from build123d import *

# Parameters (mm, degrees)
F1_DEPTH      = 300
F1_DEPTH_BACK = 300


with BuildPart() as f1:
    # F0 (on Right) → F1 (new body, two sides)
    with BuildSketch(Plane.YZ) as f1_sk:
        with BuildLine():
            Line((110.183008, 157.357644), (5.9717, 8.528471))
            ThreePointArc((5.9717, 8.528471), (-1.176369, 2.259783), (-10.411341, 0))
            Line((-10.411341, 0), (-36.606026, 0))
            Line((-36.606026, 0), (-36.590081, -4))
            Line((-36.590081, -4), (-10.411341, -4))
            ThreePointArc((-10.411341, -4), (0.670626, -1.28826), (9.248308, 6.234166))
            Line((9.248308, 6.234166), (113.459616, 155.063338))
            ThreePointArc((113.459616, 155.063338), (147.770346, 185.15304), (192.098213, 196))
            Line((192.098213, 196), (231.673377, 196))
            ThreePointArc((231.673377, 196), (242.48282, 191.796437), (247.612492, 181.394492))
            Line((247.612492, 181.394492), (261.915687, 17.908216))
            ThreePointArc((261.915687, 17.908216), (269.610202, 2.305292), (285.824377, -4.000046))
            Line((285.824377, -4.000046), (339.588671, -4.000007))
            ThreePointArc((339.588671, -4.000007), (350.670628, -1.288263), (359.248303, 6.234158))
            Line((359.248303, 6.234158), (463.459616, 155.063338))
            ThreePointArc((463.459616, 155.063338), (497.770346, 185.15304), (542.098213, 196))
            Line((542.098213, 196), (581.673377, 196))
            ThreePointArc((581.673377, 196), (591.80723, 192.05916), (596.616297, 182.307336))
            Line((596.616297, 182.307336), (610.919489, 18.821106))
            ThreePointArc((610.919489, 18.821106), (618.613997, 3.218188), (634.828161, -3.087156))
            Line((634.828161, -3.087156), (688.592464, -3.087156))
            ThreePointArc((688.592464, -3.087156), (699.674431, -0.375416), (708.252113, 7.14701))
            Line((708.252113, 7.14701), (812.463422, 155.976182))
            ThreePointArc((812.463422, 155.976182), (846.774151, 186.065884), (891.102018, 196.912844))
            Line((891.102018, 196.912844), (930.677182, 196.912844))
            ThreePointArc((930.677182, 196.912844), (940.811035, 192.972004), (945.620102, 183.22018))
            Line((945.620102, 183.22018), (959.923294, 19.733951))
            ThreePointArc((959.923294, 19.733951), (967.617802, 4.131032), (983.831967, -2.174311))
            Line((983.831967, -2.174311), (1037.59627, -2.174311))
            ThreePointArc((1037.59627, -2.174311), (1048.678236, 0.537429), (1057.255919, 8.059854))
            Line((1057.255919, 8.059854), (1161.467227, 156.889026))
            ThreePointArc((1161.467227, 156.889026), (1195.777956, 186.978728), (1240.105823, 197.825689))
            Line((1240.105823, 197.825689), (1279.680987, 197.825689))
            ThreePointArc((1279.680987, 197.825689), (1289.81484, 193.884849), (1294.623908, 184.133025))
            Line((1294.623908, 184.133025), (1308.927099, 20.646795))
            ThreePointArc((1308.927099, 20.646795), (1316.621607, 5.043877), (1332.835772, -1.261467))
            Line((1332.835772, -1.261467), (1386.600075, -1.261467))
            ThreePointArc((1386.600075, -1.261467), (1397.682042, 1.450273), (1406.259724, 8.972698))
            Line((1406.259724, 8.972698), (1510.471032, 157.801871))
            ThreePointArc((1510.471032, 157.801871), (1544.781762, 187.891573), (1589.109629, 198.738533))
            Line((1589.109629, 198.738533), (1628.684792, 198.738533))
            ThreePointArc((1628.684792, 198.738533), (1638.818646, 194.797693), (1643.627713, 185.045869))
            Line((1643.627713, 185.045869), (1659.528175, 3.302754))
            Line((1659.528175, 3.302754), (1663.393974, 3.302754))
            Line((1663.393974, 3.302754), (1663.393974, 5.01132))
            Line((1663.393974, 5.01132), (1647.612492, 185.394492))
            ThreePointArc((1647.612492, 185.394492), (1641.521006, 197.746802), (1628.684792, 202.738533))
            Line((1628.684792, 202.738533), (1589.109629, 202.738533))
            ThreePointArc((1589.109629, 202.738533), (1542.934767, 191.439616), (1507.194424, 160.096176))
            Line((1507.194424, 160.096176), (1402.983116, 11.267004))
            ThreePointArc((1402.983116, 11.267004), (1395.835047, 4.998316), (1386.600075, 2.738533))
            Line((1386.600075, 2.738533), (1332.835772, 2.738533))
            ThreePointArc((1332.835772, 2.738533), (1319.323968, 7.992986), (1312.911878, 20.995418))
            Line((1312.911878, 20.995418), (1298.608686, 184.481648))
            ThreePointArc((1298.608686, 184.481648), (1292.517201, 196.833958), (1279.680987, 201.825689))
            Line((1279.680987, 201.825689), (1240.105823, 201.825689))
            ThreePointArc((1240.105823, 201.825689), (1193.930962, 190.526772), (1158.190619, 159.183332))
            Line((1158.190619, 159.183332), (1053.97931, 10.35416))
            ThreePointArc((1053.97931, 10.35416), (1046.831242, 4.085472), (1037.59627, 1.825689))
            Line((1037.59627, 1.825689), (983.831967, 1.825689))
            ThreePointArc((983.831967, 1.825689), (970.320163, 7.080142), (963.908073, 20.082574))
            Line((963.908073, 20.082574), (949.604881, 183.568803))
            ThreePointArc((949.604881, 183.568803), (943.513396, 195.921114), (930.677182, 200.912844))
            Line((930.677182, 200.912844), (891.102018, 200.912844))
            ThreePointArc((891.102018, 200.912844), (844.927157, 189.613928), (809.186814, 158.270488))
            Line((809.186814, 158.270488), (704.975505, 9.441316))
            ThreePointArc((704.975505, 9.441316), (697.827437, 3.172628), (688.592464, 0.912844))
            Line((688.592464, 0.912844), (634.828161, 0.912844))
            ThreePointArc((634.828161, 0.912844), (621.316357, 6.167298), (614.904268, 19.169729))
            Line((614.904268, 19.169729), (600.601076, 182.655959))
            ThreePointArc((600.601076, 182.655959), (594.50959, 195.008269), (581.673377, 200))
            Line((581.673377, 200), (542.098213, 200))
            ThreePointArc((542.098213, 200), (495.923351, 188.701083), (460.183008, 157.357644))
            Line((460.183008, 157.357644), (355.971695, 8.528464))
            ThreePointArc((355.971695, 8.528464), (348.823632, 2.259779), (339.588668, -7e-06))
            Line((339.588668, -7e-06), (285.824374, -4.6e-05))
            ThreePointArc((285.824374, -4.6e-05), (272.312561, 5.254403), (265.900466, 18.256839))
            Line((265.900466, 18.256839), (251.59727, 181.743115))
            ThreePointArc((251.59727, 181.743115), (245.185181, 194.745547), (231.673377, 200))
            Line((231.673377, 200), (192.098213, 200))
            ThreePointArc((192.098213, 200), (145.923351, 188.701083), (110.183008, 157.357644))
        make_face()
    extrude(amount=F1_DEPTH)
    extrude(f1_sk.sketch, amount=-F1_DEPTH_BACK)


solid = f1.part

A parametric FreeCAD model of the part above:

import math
import FreeCAD as App
import Part
import Sketcher
Q = App.Units.Quantity

doc = App.newDocument("Part")
body = doc.addObject("PartDesign::Body", "Body")

sketch1 = body.newObject("Sketcher::SketchObject", "Sketch")
sketch1.AttachmentSupport = (doc.getObject("YZ_Plane"), [""])
sketch1.MapMode = "FlatFace"
sketch1.addGeometry([
    Part.LineSegment(App.Vector(110.2, 157.4, 0), App.Vector(6, 8.5, 0)),
    Part.ArcOfCircle(Part.Circle(App.Vector(-10.4, 20, 0), App.Vector(0, 0, 1), 20), math.radians(-90), math.radians(-35)),
    Part.LineSegment(App.Vector(-10.4, 0, 0), App.Vector(-36.6, 0, 0)),
    Part.LineSegment(App.Vector(-36.6, 0, 0), App.Vector(-36.6, -4, 0)),
    Part.LineSegment(App.Vector(-36.6, -4, 0), App.Vector(-10.4, -4, 0)),
    Part.ArcOfCircle(Part.Circle(App.Vector(-10.4, 20, 0), App.Vector(0, 0, 1), 24), math.radians(-90), math.radians(-35)),
    Part.LineSegment(App.Vector(9.2, 6.2, 0), App.Vector(113.5, 155.1, 0)),
    Part.ArcOfCircle(Part.Circle(App.Vector(192.1, 100, 0), App.Vector(0, 0, 1), 96), math.radians(90), math.radians(145)),
    Part.LineSegment(App.Vector(192.1, 196, 0), App.Vector(231.7, 196, 0)),
    Part.ArcOfCircle(Part.Circle(App.Vector(231.7, 180, 0), App.Vector(0, 0, 1), 16), math.radians(5), math.radians(90)),
    Part.LineSegment(App.Vector(247.6, 181.4, 0), App.Vector(261.9, 17.9, 0)),
    Part.ArcOfCircle(Part.Circle(App.Vector(285.8, 20, 0), App.Vector(0, 0, 1), 24), math.radians(-175), math.radians(-90)),
    Part.LineSegment(App.Vector(285.8, -4, 0), App.Vector(339.6, -4, 0)),
    Part.ArcOfCircle(Part.Circle(App.Vector(339.6, 20, 0), App.Vector(0, 0, 1), 24), math.radians(-90), math.radians(-35)),
    Part.LineSegment(App.Vector(359.2, 6.2, 0), App.Vector(463.5, 155.1, 0)),
    Part.ArcOfCircle(Part.Circle(App.Vector(542.1, 100, 0), App.Vector(0, 0, 1), 96), math.radians(90), math.radians(145)),
    Part.LineSegment(App.Vector(542.1, 196, 0), App.Vector(581.7, 196, 0)),
    Part.ArcOfCircle(Part.Circle(App.Vector(581.7, 181, 0), App.Vector(0, 0, 1), 15), math.radians(5), math.radians(90)),
    Part.LineSegment(App.Vector(596.6, 182.3, 0), App.Vector(610.9, 18.8, 0)),
    Part.ArcOfCircle(Part.Circle(App.Vector(634.8, 20.9, 0), App.Vector(0, 0, 1), 24), math.radians(-175), math.radians(-90)),
    Part.LineSegment(App.Vector(634.8, -3.1, 0), App.Vector(688.6, -3.1, 0)),
    Part.ArcOfCircle(Part.Circle(App.Vector(688.6, 20.9, 0), App.Vector(0, 0, 1), 24), math.radians(-90), math.radians(-35)),
    Part.LineSegment(App.Vector(708.3, 7.1, 0), App.Vector(812.5, 156, 0)),
    Part.ArcOfCircle(Part.Circle(App.Vector(891.1, 100.9, 0), App.Vector(0, 0, 1), 96), math.radians(90), math.radians(145)),
    Part.LineSegment(App.Vector(891.1, 196.9, 0), App.Vector(930.7, 196.9, 0)),
    Part.ArcOfCircle(Part.Circle(App.Vector(930.7, 181.9, 0), App.Vector(0, 0, 1), 15), math.radians(5), math.radians(90)),
    Part.LineSegment(App.Vector(945.6, 183.2, 0), App.Vector(959.9, 19.7, 0)),
    Part.ArcOfCircle(Part.Circle(App.Vector(983.8, 21.8, 0), App.Vector(0, 0, 1), 24), math.radians(-175), math.radians(-90)),
    Part.LineSegment(App.Vector(983.8, -2.2, 0), App.Vector(1037.6, -2.2, 0)),
    Part.ArcOfCircle(Part.Circle(App.Vector(1037.6, 21.8, 0), App.Vector(0, 0, 1), 24), math.radians(-90), math.radians(-35)),
    Part.LineSegment(App.Vector(1057.3, 8.1, 0), App.Vector(1161.5, 156.9, 0)),
    Part.ArcOfCircle(Part.Circle(App.Vector(1240.1, 101.8, 0), App.Vector(0, 0, 1), 96), math.radians(90), math.radians(145)),
    Part.LineSegment(App.Vector(1240.1, 197.8, 0), App.Vector(1279.7, 197.8, 0)),
    Part.ArcOfCircle(Part.Circle(App.Vector(1279.7, 182.8, 0), App.Vector(0, 0, 1), 15), math.radians(5), math.radians(90)),
    Part.LineSegment(App.Vector(1294.6, 184.1, 0), App.Vector(1308.9, 20.6, 0)),
    Part.ArcOfCircle(Part.Circle(App.Vector(1332.8, 22.7, 0), App.Vector(0, 0, 1), 24), math.radians(-175), math.radians(-90)),
    Part.LineSegment(App.Vector(1332.8, -1.3, 0), App.Vector(1386.6, -1.3, 0)),
    Part.ArcOfCircle(Part.Circle(App.Vector(1386.6, 22.7, 0), App.Vector(0, 0, 1), 24), math.radians(-90), math.radians(-35)),
    Part.LineSegment(App.Vector(1406.3, 9, 0), App.Vector(1510.5, 157.8, 0)),
    Part.ArcOfCircle(Part.Circle(App.Vector(1589.1, 102.7, 0), App.Vector(0, 0, 1), 96), math.radians(90), math.radians(145)),
    Part.LineSegment(App.Vector(1589.1, 198.7, 0), App.Vector(1628.7, 198.7, 0)),
    Part.ArcOfCircle(Part.Circle(App.Vector(1628.7, 183.7, 0), App.Vector(0, 0, 1), 15), math.radians(5), math.radians(90)),
    Part.LineSegment(App.Vector(1643.6, 185, 0), App.Vector(1659.5, 3.3, 0)),
    Part.LineSegment(App.Vector(1659.5, 3.3, 0), App.Vector(1663.4, 3.3, 0)),
    Part.LineSegment(App.Vector(1663.4, 3.3, 0), App.Vector(1663.4, 5, 0)),
    Part.LineSegment(App.Vector(1663.4, 5, 0), App.Vector(1647.6, 185.4, 0)),
    Part.ArcOfCircle(Part.Circle(App.Vector(1628.7, 183.7, 0), App.Vector(0, 0, 1), 19), math.radians(5), math.radians(90)),
    Part.LineSegment(App.Vector(1628.7, 202.7, 0), App.Vector(1589.1, 202.7, 0)),
    Part.ArcOfCircle(Part.Circle(App.Vector(1589.1, 102.7, 0), App.Vector(0, 0, 1), 100), math.radians(90), math.radians(145)),
    Part.LineSegment(App.Vector(1507.2, 160.1, 0), App.Vector(1403, 11.3, 0)),
    Part.ArcOfCircle(Part.Circle(App.Vector(1386.6, 22.7, 0), App.Vector(0, 0, 1), 20), math.radians(-90), math.radians(-35)),
    Part.LineSegment(App.Vector(1386.6, 2.7, 0), App.Vector(1332.8, 2.7, 0)),
    Part.ArcOfCircle(Part.Circle(App.Vector(1332.8, 22.7, 0), App.Vector(0, 0, 1), 20), math.radians(-175), math.radians(-90)),
    Part.LineSegment(App.Vector(1312.9, 21, 0), App.Vector(1298.6, 184.5, 0)),
    Part.ArcOfCircle(Part.Circle(App.Vector(1279.7, 182.8, 0), App.Vector(0, 0, 1), 19), math.radians(5), math.radians(90)),
    Part.LineSegment(App.Vector(1279.7, 201.8, 0), App.Vector(1240.1, 201.8, 0)),
    Part.ArcOfCircle(Part.Circle(App.Vector(1240.1, 101.8, 0), App.Vector(0, 0, 1), 100), math.radians(90), math.radians(145)),
    Part.LineSegment(App.Vector(1158.2, 159.2, 0), App.Vector(1054, 10.4, 0)),
    Part.ArcOfCircle(Part.Circle(App.Vector(1037.6, 21.8, 0), App.Vector(0, 0, 1), 20), math.radians(-90), math.radians(-35)),
    Part.LineSegment(App.Vector(1037.6, 1.8, 0), App.Vector(983.8, 1.8, 0)),
    Part.ArcOfCircle(Part.Circle(App.Vector(983.8, 21.8, 0), App.Vector(0, 0, 1), 20), math.radians(-175), math.radians(-90)),
    Part.LineSegment(App.Vector(963.9, 20.1, 0), App.Vector(949.6, 183.6, 0)),
    Part.ArcOfCircle(Part.Circle(App.Vector(930.7, 181.9, 0), App.Vector(0, 0, 1), 19), math.radians(5), math.radians(90)),
    Part.LineSegment(App.Vector(930.7, 200.9, 0), App.Vector(891.1, 200.9, 0)),
    Part.ArcOfCircle(Part.Circle(App.Vector(891.1, 100.9, 0), App.Vector(0, 0, 1), 100), math.radians(90), math.radians(145)),
    Part.LineSegment(App.Vector(809.2, 158.3, 0), App.Vector(705, 9.4, 0)),
    Part.ArcOfCircle(Part.Circle(App.Vector(688.6, 20.9, 0), App.Vector(0, 0, 1), 20), math.radians(-90), math.radians(-35)),
    Part.LineSegment(App.Vector(688.6, 0.9, 0), App.Vector(634.8, 0.9, 0)),
    Part.ArcOfCircle(Part.Circle(App.Vector(634.8, 20.9, 0), App.Vector(0, 0, 1), 20), math.radians(-175), math.radians(-90)),
    Part.LineSegment(App.Vector(614.9, 19.2, 0), App.Vector(600.6, 182.7, 0)),
    Part.ArcOfCircle(Part.Circle(App.Vector(581.7, 181, 0), App.Vector(0, 0, 1), 19), math.radians(5), math.radians(90)),
    Part.LineSegment(App.Vector(581.7, 200, 0), App.Vector(542.1, 200, 0)),
    Part.ArcOfCircle(Part.Circle(App.Vector(542.1, 100, 0), App.Vector(0, 0, 1), 100), math.radians(90), math.radians(145)),
    Part.LineSegment(App.Vector(460.2, 157.4, 0), App.Vector(356, 8.5, 0)),
    Part.ArcOfCircle(Part.Circle(App.Vector(339.6, 20, 0), App.Vector(0, 0, 1), 20), math.radians(-90), math.radians(-35)),
    Part.LineSegment(App.Vector(339.6, 0, 0), App.Vector(285.8, 0, 0)),
    Part.ArcOfCircle(Part.Circle(App.Vector(285.8, 20, 0), App.Vector(0, 0, 1), 20), math.radians(-175), math.radians(-90)),
    Part.LineSegment(App.Vector(265.9, 18.3, 0), App.Vector(251.6, 181.7, 0)),
    Part.ArcOfCircle(Part.Circle(App.Vector(231.7, 180, 0), App.Vector(0, 0, 1), 20), math.radians(5), math.radians(90)),
    Part.LineSegment(App.Vector(231.7, 200, 0), App.Vector(192.1, 200, 0)),
    Part.ArcOfCircle(Part.Circle(App.Vector(192.1, 100, 0), App.Vector(0, 0, 1), 100), math.radians(90), math.radians(145)),
], False)
sketch1.addConstraint([
    Sketcher.Constraint("Tangent", 0, 2, 1, 2),
    Sketcher.Constraint("Tangent", 1, 1, 2, 1),
    Sketcher.Constraint("Coincident", 2, 2, 3, 1),
    Sketcher.Constraint("Coincident", 3, 2, 4, 1),
    Sketcher.Constraint("Tangent", 4, 2, 5, 1),
    Sketcher.Constraint("Tangent", 5, 2, 6, 1),
    Sketcher.Constraint("Tangent", 6, 2, 7, 2),
    Sketcher.Constraint("Tangent", 7, 1, 8, 1),
    Sketcher.Constraint("Tangent", 8, 2, 9, 2),
    Sketcher.Constraint("Tangent", 9, 1, 10, 1),
    Sketcher.Constraint("Tangent", 10, 2, 11, 1),
    Sketcher.Constraint("Tangent", 11, 2, 12, 1),
    Sketcher.Constraint("Tangent", 12, 2, 13, 1),
    Sketcher.Constraint("Tangent", 13, 2, 14, 1),
    Sketcher.Constraint("Tangent", 14, 2, 15, 2),
    Sketcher.Constraint("Tangent", 15, 1, 16, 1),
    Sketcher.Constraint("Tangent", 16, 2, 17, 2),
    Sketcher.Constraint("Tangent", 17, 1, 18, 1),
    Sketcher.Constraint("Tangent", 18, 2, 19, 1),
    Sketcher.Constraint("Tangent", 19, 2, 20, 1),
    Sketcher.Constraint("Tangent", 20, 2, 21, 1),
    Sketcher.Constraint("Tangent", 21, 2, 22, 1),
    Sketcher.Constraint("Tangent", 22, 2, 23, 2),
    Sketcher.Constraint("Tangent", 23, 1, 24, 1),
    Sketcher.Constraint("Tangent", 24, 2, 25, 2),
    Sketcher.Constraint("Tangent", 25, 1, 26, 1),
    Sketcher.Constraint("Tangent", 26, 2, 27, 1),
    Sketcher.Constraint("Tangent", 27, 2, 28, 1),
    Sketcher.Constraint("Tangent", 28, 2, 29, 1),
    Sketcher.Constraint("Tangent", 29, 2, 30, 1),
    Sketcher.Constraint("Tangent", 30, 2, 31, 2),
    Sketcher.Constraint("Tangent", 31, 1, 32, 1),
    Sketcher.Constraint("Tangent", 32, 2, 33, 2),
    Sketcher.Constraint("Tangent", 33, 1, 34, 1),
    Sketcher.Constraint("Tangent", 34, 2, 35, 1),
    Sketcher.Constraint("Tangent", 35, 2, 36, 1),
    Sketcher.Constraint("Tangent", 36, 2, 37, 1),
    Sketcher.Constraint("Tangent", 37, 2, 38, 1),
    Sketcher.Constraint("Tangent", 38, 2, 39, 2),
    Sketcher.Constraint("Tangent", 39, 1, 40, 1),
    Sketcher.Constraint("Tangent", 40, 2, 41, 2),
    Sketcher.Constraint("Tangent", 41, 1, 42, 1),
    Sketcher.Constraint("Coincident", 42, 2, 43, 1),
    Sketcher.Constraint("Coincident", 43, 2, 44, 1),
    Sketcher.Constraint("Coincident", 44, 2, 45, 1),
    Sketcher.Constraint("Tangent", 45, 2, 46, 1),
    Sketcher.Constraint("Tangent", 46, 2, 47, 1),
    Sketcher.Constraint("Tangent", 47, 2, 48, 1),
    Sketcher.Constraint("Tangent", 48, 2, 49, 1),
    Sketcher.Constraint("Tangent", 49, 2, 50, 2),
    Sketcher.Constraint("Tangent", 50, 1, 51, 1),
    Sketcher.Constraint("Tangent", 51, 2, 52, 2),
    Sketcher.Constraint("Tangent", 52, 1, 53, 1),
    Sketcher.Constraint("Tangent", 53, 2, 54, 1),
    Sketcher.Constraint("Tangent", 54, 2, 55, 1),
    Sketcher.Constraint("Tangent", 55, 2, 56, 1),
    Sketcher.Constraint("Tangent", 56, 2, 57, 1),
    Sketcher.Constraint("Tangent", 57, 2, 58, 2),
    Sketcher.Constraint("Tangent", 58, 1, 59, 1),
    Sketcher.Constraint("Tangent", 59, 2, 60, 2),
    Sketcher.Constraint("Tangent", 60, 1, 61, 1),
    Sketcher.Constraint("Tangent", 61, 2, 62, 1),
    Sketcher.Constraint("Tangent", 62, 2, 63, 1),
    Sketcher.Constraint("Tangent", 63, 2, 64, 1),
    Sketcher.Constraint("Tangent", 64, 2, 65, 1),
    Sketcher.Constraint("Tangent", 65, 2, 66, 2),
    Sketcher.Constraint("Tangent", 66, 1, 67, 1),
    Sketcher.Constraint("Tangent", 67, 2, 68, 2),
    Sketcher.Constraint("Tangent", 68, 1, 69, 1),
    Sketcher.Constraint("Tangent", 69, 2, 70, 1),
    Sketcher.Constraint("Tangent", 70, 2, 71, 1),
    Sketcher.Constraint("Tangent", 71, 2, 72, 1),
    Sketcher.Constraint("Tangent", 72, 2, 73, 1),
    Sketcher.Constraint("Tangent", 73, 2, 74, 2),
    Sketcher.Constraint("Tangent", 74, 1, 75, 1),
    Sketcher.Constraint("Tangent", 75, 2, 76, 2),
    Sketcher.Constraint("Tangent", 76, 1, 77, 1),
    Sketcher.Constraint("Tangent", 77, 2, 78, 1),
    Sketcher.Constraint("Tangent", 78, 2, 79, 1),
    Sketcher.Constraint("Tangent", 79, 2, 80, 1),
    Sketcher.Constraint("Tangent", 80, 2, 0, 1),
    Sketcher.Constraint("Horizontal", 2),
    Sketcher.Constraint("Horizontal", 4),
    Sketcher.Constraint("Horizontal", 8),
    Sketcher.Constraint("Horizontal", 16),
    Sketcher.Constraint("Horizontal", 20),
    Sketcher.Constraint("Horizontal", 24),
    Sketcher.Constraint("Horizontal", 28),
    Sketcher.Constraint("Horizontal", 32),
    Sketcher.Constraint("Horizontal", 36),
    Sketcher.Constraint("Horizontal", 40),
    Sketcher.Constraint("Horizontal", 43),
    Sketcher.Constraint("Vertical", 44),
    Sketcher.Constraint("Horizontal", 47),
    Sketcher.Constraint("Horizontal", 51),
    Sketcher.Constraint("Horizontal", 55),
    Sketcher.Constraint("Horizontal", 59),
    Sketcher.Constraint("Horizontal", 63),
    Sketcher.Constraint("Horizontal", 67),
    Sketcher.Constraint("Horizontal", 71),
    Sketcher.Constraint("Horizontal", 79),
    Sketcher.Constraint("Coincident", 5, 3, 1, 3),
    Sketcher.Constraint("Coincident", 46, 3, 41, 3),
    Sketcher.Constraint("Coincident", 48, 3, 39, 3),
    Sketcher.Constraint("Coincident", 50, 3, 37, 3),
    Sketcher.Constraint("Coincident", 52, 3, 35, 3),
    Sketcher.Constraint("Coincident", 54, 3, 33, 3),
    Sketcher.Constraint("Coincident", 56, 3, 31, 3),
    Sketcher.Constraint("Coincident", 58, 3, 29, 3),
    Sketcher.Constraint("Coincident", 60, 3, 27, 3),
    Sketcher.Constraint("Coincident", 62, 3, 25, 3),
    Sketcher.Constraint("Coincident", 64, 3, 23, 3),
    Sketcher.Constraint("Coincident", 66, 3, 21, 3),
    Sketcher.Constraint("Coincident", 68, 3, 19, 3),
    Sketcher.Constraint("Coincident", 70, 3, 17, 3),
    Sketcher.Constraint("Coincident", 72, 3, 15, 3),
    Sketcher.Constraint("Coincident", 74, 3, 13, 3),
    Sketcher.Constraint("Coincident", 76, 3, 11, 3),
    Sketcher.Constraint("Coincident", 78, 3, 9, 3),
    Sketcher.Constraint("Coincident", 80, 3, 7, 3),
    Sketcher.Constraint("Equal", 11, 13),
    Sketcher.Constraint("Equal", 7, 15),
    Sketcher.Constraint("Equal", 13, 19),
    Sketcher.Constraint("Equal", 5, 21),
    Sketcher.Constraint("Equal", 17, 25),
    Sketcher.Constraint("Equal", 21, 27),
    Sketcher.Constraint("Equal", 13, 29),
    Sketcher.Constraint("Equal", 15, 31),
    Sketcher.Constraint("Equal", 25, 33),
    Sketcher.Constraint("Equal", 19, 35),
    Sketcher.Constraint("Equal", 35, 37),
    Sketcher.Constraint("Equal", 31, 39),
    Sketcher.Constraint("Equal", 33, 41),
    Sketcher.Constraint("Equal", 1, 50),
    Sketcher.Constraint("Equal", 46, 54),
    Sketcher.Constraint("Equal", 52, 60),
    Sketcher.Constraint("Equal", 60, 66),
    Sketcher.Constraint("Equal", 66, 68),
    Sketcher.Constraint("Equal", 54, 70),
    Sketcher.Constraint("Equal", 68, 74),
    Sketcher.Constraint("Equal", 68, 76),
    Sketcher.Constraint("Equal", 74, 78),
    Sketcher.Constraint("Equal", 72, 80),
    Sketcher.Constraint("PointOnObject", 1, 1, -1),
    Sketcher.Constraint("Parallel", 0, 6),
    Sketcher.Constraint("Parallel", 6, 14),
    Sketcher.Constraint("Parallel", 10, 18),
    Sketcher.Constraint("Parallel", 14, 22),
    Sketcher.Constraint("Parallel", 18, 26),
    Sketcher.Constraint("Parallel", 22, 30),
    Sketcher.Constraint("Parallel", 26, 34),
    Sketcher.Constraint("Parallel", 30, 38),
    Sketcher.Constraint("Parallel", 34, 42),
    Sketcher.Constraint("Parallel", 42, 45),
    Sketcher.Constraint("Parallel", 53, 61),
    Sketcher.Constraint("Horizontal", 5, 3, 13, 3),
    Sketcher.Constraint("Horizontal", 7, 3, 15, 3),
    Sketcher.Constraint("Equal", 8, 16),
    Sketcher.Constraint("Equal", 16, 24),
    Sketcher.Constraint("Equal", 20, 28),
    Sketcher.Constraint("Equal", 24, 32),
    Sketcher.Constraint("Equal", 28, 36),
    Sketcher.Constraint("Equal", 32, 40),
    Sketcher.Constraint("Equal", 6, 22),
    Sketcher.Constraint("Equal", 18, 26),
    Sketcher.Constraint("Equal", 22, 30),
    Sketcher.Constraint("Equal", 26, 34),
    Sketcher.Constraint("Equal", 30, 38),
    Sketcher.Constraint("Radius", 1, Q("20 mm")),
    Sketcher.Constraint("Radius", 9, Q("16.000001 mm")),
    Sketcher.Constraint("Radius", 17, Q("14.999999 mm")),
    Sketcher.Constraint("Radius", 23, Q("95.999999 mm")),
    Sketcher.Constraint("Radius", 48, Q("100 mm")),
    Sketcher.Constraint("Angle", 0, Q("-125 deg")),
    Sketcher.Constraint("Angle", 10, Q("-85 deg")),
    Sketcher.Constraint("DistanceY", -1, 1, 9, 3, Q("179.999999 mm")),
    Sketcher.Constraint("DistanceX", 43, 1, 43, 2, Q("3.865799 mm")),
    Sketcher.Constraint("DistanceX", 4, 1, 4, 2, Q("26.17874 mm")),
    Sketcher.Constraint("DistanceX", -1, 1, 0, 2, Q("5.9717 mm")),
    Sketcher.Constraint("DistanceX", -1, 1, 25, 1, Q("945.620102 mm")),
    Sketcher.Constraint("DistanceX", -1, 1, 34, 2, Q("1308.927099 mm")),
    Sketcher.Constraint("DistanceY", -1, 1, 37, 2, Q("8.972698 mm")),
    Sketcher.Constraint("DistanceX", 2, 2, 2, 1, Q("26.194685 mm")),
    Sketcher.Constraint("DistanceX", 8, 1, 8, 2, Q("39.575164 mm")),
    Sketcher.Constraint("DistanceX", -1, 1, 11, 3, Q("285.824361 mm")),
    Sketcher.Constraint("DistanceY", -1, 1, 44, 2, Q("5.01132 mm")),
])
pad1 = body.newObject("PartDesign::Pad", "Pad")
pad1.Profile = sketch1
pad1.Type = "TwoLengths"
pad1.Length = 300
pad1.Length2 = 300

doc.recompute()
